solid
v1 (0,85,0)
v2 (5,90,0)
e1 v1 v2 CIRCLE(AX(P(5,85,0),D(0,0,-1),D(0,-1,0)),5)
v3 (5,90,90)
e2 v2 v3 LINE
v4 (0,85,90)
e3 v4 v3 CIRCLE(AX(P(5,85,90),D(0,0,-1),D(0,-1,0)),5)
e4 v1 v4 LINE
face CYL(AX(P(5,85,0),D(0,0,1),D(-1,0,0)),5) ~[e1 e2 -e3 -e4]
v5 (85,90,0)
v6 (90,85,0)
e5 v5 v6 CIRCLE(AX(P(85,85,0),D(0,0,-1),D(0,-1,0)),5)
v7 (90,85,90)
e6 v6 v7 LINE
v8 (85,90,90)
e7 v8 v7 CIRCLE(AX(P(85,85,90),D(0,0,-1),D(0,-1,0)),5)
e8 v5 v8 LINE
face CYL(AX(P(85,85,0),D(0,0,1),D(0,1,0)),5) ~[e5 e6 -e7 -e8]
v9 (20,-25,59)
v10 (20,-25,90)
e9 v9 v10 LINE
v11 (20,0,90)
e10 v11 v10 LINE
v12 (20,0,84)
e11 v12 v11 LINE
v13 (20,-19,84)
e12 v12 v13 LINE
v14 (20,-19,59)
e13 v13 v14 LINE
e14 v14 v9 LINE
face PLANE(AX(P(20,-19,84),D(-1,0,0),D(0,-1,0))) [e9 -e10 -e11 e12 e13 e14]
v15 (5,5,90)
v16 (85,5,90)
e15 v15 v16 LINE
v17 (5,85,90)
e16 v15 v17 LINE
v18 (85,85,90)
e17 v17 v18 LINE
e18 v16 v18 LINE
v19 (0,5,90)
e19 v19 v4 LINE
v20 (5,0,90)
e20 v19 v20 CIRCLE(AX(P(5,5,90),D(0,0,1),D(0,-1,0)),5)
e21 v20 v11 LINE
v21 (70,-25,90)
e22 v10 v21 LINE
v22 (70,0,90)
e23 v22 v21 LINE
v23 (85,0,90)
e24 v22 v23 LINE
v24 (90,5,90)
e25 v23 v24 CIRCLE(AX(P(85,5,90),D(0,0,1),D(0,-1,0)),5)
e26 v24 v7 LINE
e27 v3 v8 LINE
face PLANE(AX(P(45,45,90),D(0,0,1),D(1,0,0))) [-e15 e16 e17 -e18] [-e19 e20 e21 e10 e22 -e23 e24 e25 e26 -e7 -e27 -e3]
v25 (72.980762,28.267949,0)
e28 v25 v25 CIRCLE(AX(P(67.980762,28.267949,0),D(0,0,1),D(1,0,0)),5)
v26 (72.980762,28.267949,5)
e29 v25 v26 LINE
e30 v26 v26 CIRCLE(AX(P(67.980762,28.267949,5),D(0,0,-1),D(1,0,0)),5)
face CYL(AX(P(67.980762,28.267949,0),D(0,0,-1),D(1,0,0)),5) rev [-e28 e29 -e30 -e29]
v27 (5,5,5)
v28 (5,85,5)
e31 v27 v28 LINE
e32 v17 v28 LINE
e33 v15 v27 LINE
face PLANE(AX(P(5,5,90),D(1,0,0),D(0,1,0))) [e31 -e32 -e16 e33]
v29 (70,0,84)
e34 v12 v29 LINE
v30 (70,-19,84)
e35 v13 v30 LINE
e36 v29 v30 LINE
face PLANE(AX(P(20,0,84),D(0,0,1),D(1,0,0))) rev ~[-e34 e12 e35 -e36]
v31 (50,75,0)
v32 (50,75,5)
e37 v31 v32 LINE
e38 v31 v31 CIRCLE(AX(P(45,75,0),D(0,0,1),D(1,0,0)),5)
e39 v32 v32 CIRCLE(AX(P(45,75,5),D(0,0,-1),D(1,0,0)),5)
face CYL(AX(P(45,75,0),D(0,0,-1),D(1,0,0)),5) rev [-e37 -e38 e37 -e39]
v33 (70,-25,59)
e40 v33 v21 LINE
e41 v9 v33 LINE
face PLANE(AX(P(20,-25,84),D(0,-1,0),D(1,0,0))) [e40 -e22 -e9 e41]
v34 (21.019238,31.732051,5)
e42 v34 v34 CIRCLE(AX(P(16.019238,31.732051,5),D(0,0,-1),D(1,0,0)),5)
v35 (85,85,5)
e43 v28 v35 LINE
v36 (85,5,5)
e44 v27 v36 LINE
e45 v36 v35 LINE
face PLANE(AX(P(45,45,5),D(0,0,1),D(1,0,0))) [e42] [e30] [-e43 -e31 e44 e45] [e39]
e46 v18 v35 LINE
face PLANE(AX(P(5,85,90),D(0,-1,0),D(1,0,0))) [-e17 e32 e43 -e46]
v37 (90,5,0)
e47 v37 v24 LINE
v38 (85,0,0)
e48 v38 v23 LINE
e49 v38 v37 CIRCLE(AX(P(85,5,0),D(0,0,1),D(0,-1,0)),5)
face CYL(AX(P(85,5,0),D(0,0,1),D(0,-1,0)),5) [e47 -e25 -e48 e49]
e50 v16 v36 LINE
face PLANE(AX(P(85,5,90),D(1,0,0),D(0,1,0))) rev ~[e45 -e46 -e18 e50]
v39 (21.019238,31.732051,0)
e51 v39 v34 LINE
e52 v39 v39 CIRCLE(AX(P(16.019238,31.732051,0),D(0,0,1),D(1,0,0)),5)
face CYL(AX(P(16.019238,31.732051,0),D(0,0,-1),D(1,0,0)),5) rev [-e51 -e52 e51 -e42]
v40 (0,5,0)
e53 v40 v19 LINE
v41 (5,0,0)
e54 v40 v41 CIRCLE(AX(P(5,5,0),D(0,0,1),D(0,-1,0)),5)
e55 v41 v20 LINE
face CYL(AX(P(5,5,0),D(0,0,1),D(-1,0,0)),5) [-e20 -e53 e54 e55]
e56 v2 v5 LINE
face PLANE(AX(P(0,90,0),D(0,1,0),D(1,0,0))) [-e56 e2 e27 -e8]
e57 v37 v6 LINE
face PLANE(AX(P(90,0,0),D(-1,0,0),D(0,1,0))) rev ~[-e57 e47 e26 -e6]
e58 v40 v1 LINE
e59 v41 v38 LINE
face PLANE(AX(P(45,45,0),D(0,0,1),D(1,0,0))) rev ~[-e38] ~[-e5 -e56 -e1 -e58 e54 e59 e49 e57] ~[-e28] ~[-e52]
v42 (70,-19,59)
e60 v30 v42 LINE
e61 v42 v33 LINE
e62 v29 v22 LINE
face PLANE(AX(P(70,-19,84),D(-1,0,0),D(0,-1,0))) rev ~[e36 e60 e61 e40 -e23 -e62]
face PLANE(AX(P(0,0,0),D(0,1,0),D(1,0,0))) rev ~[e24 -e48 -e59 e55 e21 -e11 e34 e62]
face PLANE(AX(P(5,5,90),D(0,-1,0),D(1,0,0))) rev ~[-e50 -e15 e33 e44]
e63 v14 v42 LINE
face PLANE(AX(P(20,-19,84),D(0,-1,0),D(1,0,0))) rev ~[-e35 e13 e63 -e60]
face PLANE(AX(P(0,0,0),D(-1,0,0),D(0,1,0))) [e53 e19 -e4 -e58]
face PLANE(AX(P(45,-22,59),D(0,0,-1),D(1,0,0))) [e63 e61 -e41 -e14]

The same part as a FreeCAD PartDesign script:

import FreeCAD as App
import Part
import Sketcher
from FreeCAD import Vector


def edges_at(feature, points):
    """Names of the edges that pass closest to the given points."""
    edges = feature.Shape.Edges
    near = lambda p: min(range(len(edges)), key=lambda i: edges[i].distToShape(Part.Vertex(*p))[0])
    return sorted({f"Edge{near(p) + 1}" for p in points})

doc = App.newDocument("Part")
body = doc.addObject("PartDesign::Body", "Body")

# Sketch on XY plane
sketch1 = body.newObject("Sketcher::SketchObject", "Sketch")
sketch1.AttachmentSupport = (doc.getObject("XY_Plane"), [""])
sketch1.MapMode = "FlatFace"
sketch1.addGeometry(Part.LineSegment(Vector(0, 90, 0), Vector(0, 0, 0)), False)
sketch1.addGeometry(Part.LineSegment(Vector(0, 0, 0), Vector(90, 0, 0)), False)
sketch1.addGeometry(Part.LineSegment(Vector(90, 0, 0), Vector(90, 90, 0)), False)
sketch1.addGeometry(Part.LineSegment(Vector(90, 90, 0), Vector(0, 90, 0)), False)
sketch1.addGeometry(Part.Circle(Vector(16, 32, 0), Vector(0, 0, 1), 5), False)
sketch1.addGeometry(Part.Circle(Vector(68, 28, 0), Vector(0, 0, 1), 5), False)
sketch1.addGeometry(Part.Circle(Vector(45, 75, 0), Vector(0, 0, 1), 5), False)
sketch1.addConstraint(Sketcher.Constraint("Coincident", 0, 2, 1, 1))
sketch1.addConstraint(Sketcher.Constraint("Coincident", 1, 2, 2, 1))
sketch1.addConstraint(Sketcher.Constraint("Coincident", 2, 2, 3, 1))
sketch1.addConstraint(Sketcher.Constraint("Coincident", 3, 2, 0, 1))
sketch1.addConstraint(Sketcher.Constraint("Vertical", 0))
sketch1.addConstraint(Sketcher.Constraint("Horizontal", 1))
sketch1.addConstraint(Sketcher.Constraint("Vertical", 2))
sketch1.addConstraint(Sketcher.Constraint("Horizontal", 3))
sketch1.addConstraint(Sketcher.Constraint("Coincident", 0, 2, -1, 1))
sketch1.addConstraint(Sketcher.Constraint("Equal", 4, 5))
sketch1.addConstraint(Sketcher.Constraint("Equal", 5, 6))
sketch1.addConstraint(Sketcher.Constraint("Equal", 3, 0))
sketch1.addConstraint(Sketcher.Constraint("Diameter", 4, 10.0))
sketch1.addConstraint(Sketcher.Constraint("DistanceX", 1, 1, 1, 2, 90.0))
sketch1.addConstraint(Sketcher.Constraint("DistanceX", -1, 1, 6, 3, 45.0))
sketch1.addConstraint(Sketcher.Constraint("DistanceY", -1, 1, 6, 3, 75.0))
sketch1.addConstraint(Sketcher.Constraint("DistanceY", 5, 3, 4, 3, 3.464102))
sketch1.addConstraint(Sketcher.Constraint("DistanceX", -1, 1, 4, 3, 16.019238))
sketch1.addConstraint(Sketcher.Constraint("DistanceY", -1, 1, 4, 3, 31.732051))
sketch1.addConstraint(Sketcher.Constraint("DistanceX", -1, 1, 5, 3, 67.980762))
pad1 = body.newObject("PartDesign::Pad", "Pad")
pad1.Profile = sketch1
pad1.Length = 90
doc.recompute()

fillet = body.newObject("PartDesign::Fillet", "Fillet")
fillet.Base = (pad1, edges_at(pad1, [
    (90, 0, 45),
    (90, 90, 45),
    (0, 0, 45),
    (0, 90, 45),
]))
fillet.Radius = 5

# Sketch on XY plane
sketch2 = body.newObject("Sketcher::SketchObject", "Sketch001")
sketch2.AttachmentSupport = (doc.getObject("XY_Plane"), [""])
sketch2.MapMode = "FlatFace"
sketch2.AttachmentOffset = App.Placement(Vector(0, 0, 90), App.Rotation())
sketch2.addGeometry(Part.LineSegment(Vector(5, 85, 0), Vector(5, 5, 0)), False)
sketch2.addGeometry(Part.LineSegment(Vector(5, 5, 0), Vector(85, 5, 0)), False)
sketch2.addGeometry(Part.LineSegment(Vector(85, 5, 0), Vector(85, 85, 0)), False)
sketch2.addGeometry(Part.LineSegment(Vector(85, 85, 0), Vector(5, 85, 0)), False)
sketch2.addConstraint(Sketcher.Constraint("Coincident", 0, 2, 1, 1))
sketch2.addConstraint(Sketcher.Constraint("Coincident", 1, 2, 2, 1))
sketch2.addConstraint(Sketcher.Constraint("Coincident", 2, 2, 3, 1))
sketch2.addConstraint(Sketcher.Constraint("Coincident", 3, 2, 0, 1))
sketch2.addConstraint(Sketcher.Constraint("Vertical", 0))
sketch2.addConstraint(Sketcher.Constraint("Horizontal", 1))
sketch2.addConstraint(Sketcher.Constraint("Vertical", 2))
sketch2.addConstraint(Sketcher.Constraint("Horizontal", 3))
sketch2.addConstraint(Sketcher.Constraint("Equal", 3, 0))
sketch2.addConstraint(Sketcher.Constraint("DistanceX", 1, 1, 1, 2, 80.0))
sketch2.addConstraint(Sketcher.Constraint("DistanceX", -1, 1, 0, 2, 5.0))
sketch2.addConstraint(Sketcher.Constraint("DistanceY", -1, 1, 0, 2, 5.0))
pocket1 = body.newObject("PartDesign::Pocket", "Pocket")
pocket1.Profile = sketch2
pocket1.Length = 85

# Sketch on XZ plane
sketch3 = body.newObject("Sketcher::SketchObject", "Sketch002")
sketch3.AttachmentSupport = (doc.getObject("XZ_Plane"), [""])
sketch3.MapMode = "FlatFace"
sketch3.addGeometry(Part.LineSegment(Vector(20, 90, 0), Vector(20, 84, 0)), False)
sketch3.addGeometry(Part.LineSegment(Vector(20, 84, 0), Vector(70, 84, 0)), False)
sketch3.addGeometry(Part.LineSegment(Vector(70, 84, 0), Vector(70, 90, 0)), False)
sketch3.addGeometry(Part.LineSegment(Vector(70, 90, 0), Vector(20, 90, 0)), False)
sketch3.addConstraint(Sketcher.Constraint("Coincident", 0, 2, 1, 1))
sketch3.addConstraint(Sketcher.Constraint("Coincident", 1, 2, 2, 1))
sketch3.addConstraint(Sketcher.Constraint("Coincident", 2, 2, 3, 1))
sketch3.addConstraint(Sketcher.Constraint("Coincident", 3, 2, 0, 1))
sketch3.addConstraint(Sketcher.Constraint("Vertical", 0))
sketch3.addConstraint(Sketcher.Constraint("Horizontal", 1))
sketch3.addConstraint(Sketcher.Constraint("Vertical", 2))
sketch3.addConstraint(Sketcher.Constraint("Horizontal", 3))
sketch3.addConstraint(Sketcher.Constraint("DistanceX", 1, 1, 1, 2, 50.0))
sketch3.addConstraint(Sketcher.Constraint("DistanceY", 0, 2, 0, 1, 6.0))
sketch3.addConstraint(Sketcher.Constraint("DistanceX", -1, 1, 0, 2, 20.0))
sketch3.addConstraint(Sketcher.Constraint("DistanceY", -1, 1, 0, 2, 84.0))
pad2 = body.newObject("PartDesign::Pad", "Pad001")
pad2.Profile = sketch3
pad2.Length = 25

# Sketch on XY plane
sketch4 = body.newObject("Sketcher::SketchObject", "Sketch003")
sketch4.AttachmentSupport = (doc.getObject("XY_Plane"), [""])
sketch4.MapMode = "FlatFace"
sketch4.AttachmentOffset = App.Placement(Vector(0, 0, 84), App.Rotation())
sketch4.addGeometry(Part.LineSegment(Vector(20, -25, 0), Vector(20, -19, 0)), False)
sketch4.addGeometry(Part.LineSegment(Vector(20, -19, 0), Vector(70, -19, 0)), False)
sketch4.addGeometry(Part.LineSegment(Vector(70, -19, 0), Vector(70, -25, 0)), False)
sketch4.addGeometry(Part.LineSegment(Vector(70, -25, 0), Vector(20, -25, 0)), False)
sketch4.addConstraint(Sketcher.Constraint("Coincident", 0, 2, 1, 1))
sketch4.addConstraint(Sketcher.Constraint("Coincident", 1, 2, 2, 1))
sketch4.addConstraint(Sketcher.Constraint("Coincident", 2, 2, 3, 1))
sketch4.addConstraint(Sketcher.Constraint("Coincident", 3, 2, 0, 1))
sketch4.addConstraint(Sketcher.Constraint("Vertical", 0))
sketch4.addConstraint(Sketcher.Constraint("Horizontal", 1))
sketch4.addConstraint(Sketcher.Constraint("Vertical", 2))
sketch4.addConstraint(Sketcher.Constraint("Horizontal", 3))
sketch4.addConstraint(Sketcher.Constraint("DistanceX", 1, 1, 1, 2, 50.0))
sketch4.addConstraint(Sketcher.Constraint("DistanceY", 0, 1, 0, 2, 6.0))
sketch4.addConstraint(Sketcher.Constraint("DistanceX", -1, 1, 0, 2, 20.0))
sketch4.addConstraint(Sketcher.Constraint("DistanceY", 0, 2, -1, 1, 19.0))
pad3 = body.newObject("PartDesign::Pad", "Pad002")
pad3.Profile = sketch4
pad3.Length = 25
pad3.Reversed = True

doc.recompute()
